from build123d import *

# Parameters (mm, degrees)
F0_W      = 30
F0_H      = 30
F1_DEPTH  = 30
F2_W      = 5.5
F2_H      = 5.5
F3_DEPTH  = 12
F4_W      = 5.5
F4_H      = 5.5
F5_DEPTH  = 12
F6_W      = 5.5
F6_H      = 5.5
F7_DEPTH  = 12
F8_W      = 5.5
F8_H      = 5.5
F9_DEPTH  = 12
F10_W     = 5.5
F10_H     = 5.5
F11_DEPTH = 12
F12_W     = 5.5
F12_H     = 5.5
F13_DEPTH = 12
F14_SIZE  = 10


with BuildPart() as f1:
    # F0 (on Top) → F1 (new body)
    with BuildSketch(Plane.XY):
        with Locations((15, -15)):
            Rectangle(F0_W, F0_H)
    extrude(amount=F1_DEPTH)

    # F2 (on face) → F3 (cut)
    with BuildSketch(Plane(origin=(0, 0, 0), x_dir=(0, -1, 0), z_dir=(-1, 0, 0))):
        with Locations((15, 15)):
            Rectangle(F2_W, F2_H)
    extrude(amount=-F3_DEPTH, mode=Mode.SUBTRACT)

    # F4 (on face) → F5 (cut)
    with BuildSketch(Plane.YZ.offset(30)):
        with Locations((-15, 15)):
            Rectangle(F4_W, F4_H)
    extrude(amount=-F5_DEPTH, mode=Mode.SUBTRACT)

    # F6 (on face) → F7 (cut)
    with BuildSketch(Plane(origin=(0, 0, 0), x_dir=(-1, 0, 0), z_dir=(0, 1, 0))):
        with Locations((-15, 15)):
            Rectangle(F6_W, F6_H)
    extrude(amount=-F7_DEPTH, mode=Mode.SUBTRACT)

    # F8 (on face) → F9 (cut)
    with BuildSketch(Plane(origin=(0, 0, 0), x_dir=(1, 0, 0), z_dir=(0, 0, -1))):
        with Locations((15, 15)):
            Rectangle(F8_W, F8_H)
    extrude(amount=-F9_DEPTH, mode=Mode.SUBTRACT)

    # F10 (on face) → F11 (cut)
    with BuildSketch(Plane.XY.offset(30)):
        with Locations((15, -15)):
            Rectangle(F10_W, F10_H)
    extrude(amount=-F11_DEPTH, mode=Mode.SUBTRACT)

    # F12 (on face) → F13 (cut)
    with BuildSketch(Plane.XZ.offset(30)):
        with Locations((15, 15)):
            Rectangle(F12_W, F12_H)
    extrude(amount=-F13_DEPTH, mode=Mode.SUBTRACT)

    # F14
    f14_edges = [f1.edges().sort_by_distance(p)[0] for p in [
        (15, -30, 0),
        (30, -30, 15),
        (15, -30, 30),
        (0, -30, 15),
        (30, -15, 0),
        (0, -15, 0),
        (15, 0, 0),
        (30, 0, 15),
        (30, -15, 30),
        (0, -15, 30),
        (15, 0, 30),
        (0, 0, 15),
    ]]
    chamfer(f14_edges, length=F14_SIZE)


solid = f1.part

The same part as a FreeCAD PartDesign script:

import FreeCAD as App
import Part
import Sketcher


def edges_at(feature, points):
    """Names of the edges that pass closest to the given points."""
    edges = feature.Shape.Edges
    near = lambda p: min(range(len(edges)), key=lambda i: edges[i].distToShape(Part.Vertex(*p))[0])
    return sorted({f"Edge{near(p) + 1}" for p in points})


def add_polygon(sketch, points):
    """Adds a closed chain of lines whose ends are joined by coincident constraints."""
    first, n = sketch.GeometryCount, len(points)
    for a, b in zip(points, points[1:] + points[:1]):
        sketch.addGeometry(Part.LineSegment(App.Vector(*a, 0), App.Vector(*b, 0)), False)
    for i in range(n):
        sketch.addConstraint(Sketcher.Constraint("Coincident", first + i, 2, first + (i + 1) % n, 1))

doc = App.newDocument("Part")
params = doc.addObject("Spreadsheet::Sheet", "Params")
for row, (alias, value) in enumerate([
    ("sketch1_width", "30 mm"),
    ("pad1_length", "30 mm"),
    ("sketch2_width", "5.5 mm"),
    ("pocket1_length", "12 mm"),
    ("sketch3_width", "5.5 mm"),
    ("pocket2_length", "12 mm"),
    ("sketch4_width", "5.5 mm"),
    ("pocket3_length", "12 mm"),
    ("sketch5_width", "5.5 mm"),
    ("pocket4_length", "12 mm"),
    ("sketch6_width", "5.5 mm"),
    ("pocket5_length", "12 mm"),
    ("sketch7_width", "5.5 mm"),
    ("pocket6_length", "12 mm"),
    ("chamfer_size", "10 mm"),
], start=1):
    params.set(f"A{row}", alias)
    params.set(f"B{row}", "=" + value)
    params.setAlias(f"B{row}", alias)

body = doc.addObject("PartDesign::Body", "Body")

# Sketch on XY plane
sketch1 = body.newObject("Sketcher::SketchObject", "Sketch")
sketch1.AttachmentSupport = (doc.getObject("XY_Plane"), [""])
sketch1.MapMode = "FlatFace"
add_polygon(sketch1, [(0, 0), (0, -30), (30, -30), (30, 0)])  # lines 0-3
sketch1.addConstraint([
    Sketcher.Constraint("Vertical", 0),
    Sketcher.Constraint("Horizontal", 1),
    Sketcher.Constraint("Vertical", 2),
    Sketcher.Constraint("Horizontal", 3),
    Sketcher.Constraint("Coincident", 3, 2, -1, 1),
    Sketcher.Constraint("Equal", 3, 0),
    Sketcher.Constraint("DistanceX", 1, 1, 1, 2, 30.0),
])
sketch1.setExpression("Constraints[10]", "Params.sketch1_width")
pad1 = body.newObject("PartDesign::Pad", "Pad")
pad1.Profile = sketch1
pad1.setExpression("Length", "Params.pad1_length")

# Sketch on YZ plane
sketch2 = body.newObject("Sketcher::SketchObject", "Sketch001")
sketch2.AttachmentSupport = (doc.getObject("YZ_Plane"), [""])
sketch2.MapMode = "FlatFace"
add_polygon(sketch2, [(-12.25, 17.75), (-12.25, 12.25), (-17.75, 12.25), (-17.75, 17.75)])  # lines 0-3
sketch2.addConstraint([
    Sketcher.Constraint("Vertical", 0),
    Sketcher.Constraint("Horizontal", 1),
    Sketcher.Constraint("Vertical", 2),
    Sketcher.Constraint("Horizontal", 3),
    Sketcher.Constraint("Equal", 3, 0),
    Sketcher.Constraint("DistanceX", 1, 2, 1, 1, 5.5),
    Sketcher.Constraint("DistanceX", 0, 2, -1, 1, 12.25),
    Sketcher.Constraint("DistanceY", -1, 1, 0, 2, 12.25),
])
sketch2.setExpression("Constraints[9]", "Params.sketch2_width")
pocket1 = body.newObject("PartDesign::Pocket", "Pocket")
pocket1.Profile = sketch2
pocket1.setExpression("Length", "Params.pocket1_length")
pocket1.Reversed = True

# Sketch on YZ plane
sketch3 = body.newObject("Sketcher::SketchObject", "Sketch002")
sketch3.AttachmentSupport = (doc.getObject("YZ_Plane"), [""])
sketch3.MapMode = "FlatFace"
sketch3.AttachmentOffset = App.Placement(App.Vector(0, 0, 30), App.Rotation())
add_polygon(sketch3, [(-17.75, 17.75), (-17.75, 12.25), (-12.25, 12.25), (-12.25, 17.75)])  # lines 0-3
sketch3.addConstraint([
    Sketcher.Constraint("Vertical", 0),
    Sketcher.Constraint("Horizontal", 1),
    Sketcher.Constraint("Vertical", 2),
    Sketcher.Constraint("Horizontal", 3),
    Sketcher.Constraint("Equal", 3, 0),
    Sketcher.Constraint("DistanceX", 1, 1, 1, 2, 5.5),
    Sketcher.Constraint("DistanceX", 0, 2, -1, 1, 17.75),
    Sketcher.Constraint("DistanceY", -1, 1, 0, 2, 12.25),
])
sketch3.setExpression("Constraints[9]", "Params.sketch3_width")
pocket2 = body.newObject("PartDesign::Pocket", "Pocket001")
pocket2.Profile = sketch3
pocket2.setExpression("Length", "Params.pocket2_length")

# Sketch on XZ plane
sketch4 = body.newObject("Sketcher::SketchObject", "Sketch003")
sketch4.AttachmentSupport = (doc.getObject("XZ_Plane"), [""])
sketch4.MapMode = "FlatFace"
add_polygon(sketch4, [(17.75, 17.75), (17.75, 12.25), (12.25, 12.25), (12.25, 17.75)])  # lines 0-3
sketch4.addConstraint([
    Sketcher.Constraint("Vertical", 0),
    Sketcher.Constraint("Horizontal", 1),
    Sketcher.Constraint("Vertical", 2),
    Sketcher.Constraint("Horizontal", 3),
    Sketcher.Constraint("Equal", 3, 0),
    Sketcher.Constraint("DistanceX", 1, 2, 1, 1, 5.5),
    Sketcher.Constraint("DistanceX", -1, 1, 0, 2, 17.75),
    Sketcher.Constraint("DistanceY", -1, 1, 0, 2, 12.25),
])
sketch4.setExpression("Constraints[9]", "Params.sketch4_width")
pocket3 = body.newObject("PartDesign::Pocket", "Pocket002")
pocket3.Profile = sketch4
pocket3.setExpression("Length", "Params.pocket3_length")
pocket3.Reversed = True

# Sketch on XY plane
sketch5 = body.newObject("Sketcher::SketchObject", "Sketch004")
sketch5.AttachmentSupport = (doc.getObject("XY_Plane"), [""])
sketch5.MapMode = "FlatFace"
add_polygon(sketch5, [(12.25, -17.75), (12.25, -12.25), (17.75, -12.25), (17.75, -17.75)])  # lines 0-3
sketch5.addConstraint([
    Sketcher.Constraint("Vertical", 0),
    Sketcher.Constraint("Horizontal", 1),
    Sketcher.Constraint("Vertical", 2),
    Sketcher.Constraint("Horizontal", 3),
    Sketcher.Constraint("Equal", 3, 0),
    Sketcher.Constraint("DistanceX", 1, 1, 1, 2, 5.5),
    Sketcher.Constraint("DistanceX", -1, 1, 0, 2, 12.25),
    Sketcher.Constraint("DistanceY", 0, 2, -1, 1, 12.25),
])
sketch5.setExpression("Constraints[9]", "Params.sketch5_width")
pocket4 = body.newObject("PartDesign::Pocket", "Pocket003")
pocket4.Profile = sketch5
pocket4.setExpression("Length", "Params.pocket4_length")
pocket4.Reversed = True

# Sketch on XY plane
sketch6 = body.newObject("Sketcher::SketchObject", "Sketch005")
sketch6.AttachmentSupport = (doc.getObject("XY_Plane"), [""])
sketch6.MapMode = "FlatFace"
sketch6.AttachmentOffset = App.Placement(App.Vector(0, 0, 30), App.Rotation())
add_polygon(sketch6, [(12.25, -12.25), (12.25, -17.75), (17.75, -17.75), (17.75, -12.25)])  # lines 0-3
sketch6.addConstraint([
    Sketcher.Constraint("Vertical", 0),
    Sketcher.Constraint("Horizontal", 1),
    Sketcher.Constraint("Vertical", 2),
    Sketcher.Constraint("Horizontal", 3),
    Sketcher.Constraint("Equal", 3, 0),
    Sketcher.Constraint("DistanceX", 1, 1, 1, 2, 5.5),
    Sketcher.Constraint("DistanceX", -1, 1, 0, 2, 12.25),
    Sketcher.Constraint("DistanceY", 0, 2, -1, 1, 17.75),
])
sketch6.setExpression("Constraints[9]", "Params.sketch6_width")
pocket5 = body.newObject("PartDesign::Pocket", "Pocket004")
pocket5.Profile = sketch6
pocket5.setExpression("Length", "Params.pocket5_length")

# Sketch on XZ plane
sketch7 = body.newObject("Sketcher::SketchObject", "Sketch006")
sketch7.AttachmentSupport = (doc.getObject("XZ_Plane"), [""])
sketch7.MapMode = "FlatFace"
sketch7.AttachmentOffset = App.Placement(App.Vector(0, 0, 30), App.Rotation())
add_polygon(sketch7, [(12.25, 17.75), (12.25, 12.25), (17.75, 12.25), (17.75, 17.75)])  # lines 0-3
sketch7.addConstraint([
    Sketcher.Constraint("Vertical", 0),
    Sketcher.Constraint("Horizontal", 1),
    Sketcher.Constraint("Vertical", 2),
    Sketcher.Constraint("Horizontal", 3),
    Sketcher.Constraint("Equal", 3, 0),
    Sketcher.Constraint("DistanceX", 1, 1, 1, 2, 5.5),
    Sketcher.Constraint("DistanceX", -1, 1, 0, 2, 12.25),
    Sketcher.Constraint("DistanceY", -1, 1, 0, 2, 12.25),
])
sketch7.setExpression("Constraints[9]", "Params.sketch7_width")
pocket6 = body.newObject("PartDesign::Pocket", "Pocket005")
pocket6.Profile = sketch7
pocket6.setExpression("Length", "Params.pocket6_length")
doc.recompute()

chamfer = body.newObject("PartDesign::Chamfer", "Chamfer")
chamfer.Base = (pocket6, edges_at(pocket6, [
    (15, -30, 0),
    (30, -30, 15),
    (15, -30, 30),
    (0, -30, 15),
    (30, -15, 0),
    (0, -15, 0),
    (15, 0, 0),
    (30, 0, 15),
    (30, -15, 30),
    (0, -15, 30),
    (15, 0, 30),
    (0, 0, 15),
]))
chamfer.setExpression("Size", "Params.chamfer_size")

doc.recompute()
